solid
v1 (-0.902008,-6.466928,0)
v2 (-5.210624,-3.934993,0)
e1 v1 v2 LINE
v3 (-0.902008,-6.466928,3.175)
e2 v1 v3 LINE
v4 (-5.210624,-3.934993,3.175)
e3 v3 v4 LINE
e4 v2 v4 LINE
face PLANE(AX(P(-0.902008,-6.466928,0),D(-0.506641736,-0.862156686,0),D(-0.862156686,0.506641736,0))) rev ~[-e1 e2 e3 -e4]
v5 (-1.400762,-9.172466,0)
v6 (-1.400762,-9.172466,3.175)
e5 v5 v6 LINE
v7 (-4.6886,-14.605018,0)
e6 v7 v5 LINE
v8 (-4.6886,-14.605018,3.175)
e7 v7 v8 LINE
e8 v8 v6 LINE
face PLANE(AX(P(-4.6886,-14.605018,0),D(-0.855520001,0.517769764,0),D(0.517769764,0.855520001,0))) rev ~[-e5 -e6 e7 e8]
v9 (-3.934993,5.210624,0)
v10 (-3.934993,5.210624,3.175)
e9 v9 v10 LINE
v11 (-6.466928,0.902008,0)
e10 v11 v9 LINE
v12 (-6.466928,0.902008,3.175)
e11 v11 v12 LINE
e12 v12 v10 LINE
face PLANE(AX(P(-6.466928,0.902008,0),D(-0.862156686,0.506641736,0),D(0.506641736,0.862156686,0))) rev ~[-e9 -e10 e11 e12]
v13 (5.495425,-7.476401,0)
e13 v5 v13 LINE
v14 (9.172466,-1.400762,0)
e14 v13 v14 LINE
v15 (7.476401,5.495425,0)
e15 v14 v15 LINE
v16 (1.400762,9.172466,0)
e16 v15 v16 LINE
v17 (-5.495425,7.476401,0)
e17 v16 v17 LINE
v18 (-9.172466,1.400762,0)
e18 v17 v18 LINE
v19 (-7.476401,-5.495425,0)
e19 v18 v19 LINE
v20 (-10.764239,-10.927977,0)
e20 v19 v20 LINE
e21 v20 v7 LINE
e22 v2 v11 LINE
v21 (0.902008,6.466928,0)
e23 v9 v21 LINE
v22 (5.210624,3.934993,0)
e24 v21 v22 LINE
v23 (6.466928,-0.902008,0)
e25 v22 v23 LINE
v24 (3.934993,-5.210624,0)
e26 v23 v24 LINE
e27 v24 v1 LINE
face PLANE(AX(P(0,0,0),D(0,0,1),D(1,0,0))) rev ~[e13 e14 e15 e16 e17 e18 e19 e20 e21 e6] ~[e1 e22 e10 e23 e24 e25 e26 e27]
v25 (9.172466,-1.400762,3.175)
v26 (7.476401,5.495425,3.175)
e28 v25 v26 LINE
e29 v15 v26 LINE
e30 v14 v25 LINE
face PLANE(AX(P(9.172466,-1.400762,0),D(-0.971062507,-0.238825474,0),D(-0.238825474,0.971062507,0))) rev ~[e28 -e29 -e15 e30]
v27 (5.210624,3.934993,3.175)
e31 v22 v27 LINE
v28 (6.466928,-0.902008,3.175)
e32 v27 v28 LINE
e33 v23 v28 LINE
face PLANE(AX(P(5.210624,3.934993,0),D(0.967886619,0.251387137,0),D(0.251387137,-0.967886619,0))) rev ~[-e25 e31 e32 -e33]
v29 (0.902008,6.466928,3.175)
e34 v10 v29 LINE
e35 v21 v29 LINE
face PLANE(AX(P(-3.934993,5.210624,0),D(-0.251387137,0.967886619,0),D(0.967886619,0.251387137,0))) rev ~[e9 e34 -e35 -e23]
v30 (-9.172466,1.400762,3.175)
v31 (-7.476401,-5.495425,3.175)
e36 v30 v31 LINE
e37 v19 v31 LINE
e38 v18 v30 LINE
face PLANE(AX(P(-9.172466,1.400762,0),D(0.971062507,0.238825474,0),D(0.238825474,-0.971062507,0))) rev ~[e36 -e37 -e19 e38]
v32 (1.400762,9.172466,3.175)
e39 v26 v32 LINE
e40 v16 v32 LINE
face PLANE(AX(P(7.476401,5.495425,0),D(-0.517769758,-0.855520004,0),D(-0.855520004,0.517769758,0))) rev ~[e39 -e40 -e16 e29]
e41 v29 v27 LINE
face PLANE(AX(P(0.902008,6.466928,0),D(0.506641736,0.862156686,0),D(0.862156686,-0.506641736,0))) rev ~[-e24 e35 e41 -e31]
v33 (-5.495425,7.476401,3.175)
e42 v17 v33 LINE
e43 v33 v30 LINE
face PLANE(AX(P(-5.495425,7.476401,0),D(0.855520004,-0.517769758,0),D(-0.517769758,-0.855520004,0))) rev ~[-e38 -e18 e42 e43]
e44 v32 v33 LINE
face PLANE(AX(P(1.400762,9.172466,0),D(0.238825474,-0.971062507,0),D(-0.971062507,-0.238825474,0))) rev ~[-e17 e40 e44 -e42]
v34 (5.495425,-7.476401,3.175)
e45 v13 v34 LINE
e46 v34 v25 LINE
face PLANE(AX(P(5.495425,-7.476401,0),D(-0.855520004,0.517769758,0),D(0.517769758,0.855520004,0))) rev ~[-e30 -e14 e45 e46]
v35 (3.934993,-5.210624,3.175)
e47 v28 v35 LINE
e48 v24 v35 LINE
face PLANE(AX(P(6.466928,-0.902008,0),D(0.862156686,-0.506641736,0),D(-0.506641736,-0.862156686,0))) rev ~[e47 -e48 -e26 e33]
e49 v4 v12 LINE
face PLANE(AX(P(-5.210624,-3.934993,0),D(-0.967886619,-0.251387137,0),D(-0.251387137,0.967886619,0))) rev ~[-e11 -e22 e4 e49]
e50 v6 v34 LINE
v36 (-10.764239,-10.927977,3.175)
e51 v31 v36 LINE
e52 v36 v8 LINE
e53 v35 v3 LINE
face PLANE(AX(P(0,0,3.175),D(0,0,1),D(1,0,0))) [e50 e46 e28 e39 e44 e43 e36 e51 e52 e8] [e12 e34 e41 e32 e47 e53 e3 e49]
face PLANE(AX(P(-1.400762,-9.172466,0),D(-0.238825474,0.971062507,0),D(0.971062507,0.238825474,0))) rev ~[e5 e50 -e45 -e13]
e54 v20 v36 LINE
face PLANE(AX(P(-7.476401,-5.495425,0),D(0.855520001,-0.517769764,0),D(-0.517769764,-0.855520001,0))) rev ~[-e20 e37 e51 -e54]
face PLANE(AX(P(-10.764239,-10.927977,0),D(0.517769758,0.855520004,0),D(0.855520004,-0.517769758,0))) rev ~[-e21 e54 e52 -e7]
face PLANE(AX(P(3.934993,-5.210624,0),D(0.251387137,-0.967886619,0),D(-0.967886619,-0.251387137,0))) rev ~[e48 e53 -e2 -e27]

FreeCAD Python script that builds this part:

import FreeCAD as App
import Part
import Sketcher
from FreeCAD import Vector
Q = App.Units.Quantity


def add_polygon(sketch, points):
    """Adds a closed chain of lines whose ends are joined by coincident constraints."""
    first, n = sketch.GeometryCount, len(points)
    for a, b in zip(points, points[1:] + points[:1]):
        sketch.addGeometry(Part.LineSegment(App.Vector(*a, 0), App.Vector(*b, 0)), False)
    for i in range(n):
        sketch.addConstraint(Sketcher.Constraint("Coincident", first + i, 2, first + (i + 1) % n, 1))

doc = App.newDocument("Part")
body = doc.addObject("PartDesign::Body", "Body")

# Sketch on XY plane
sketch1 = body.newObject("Sketcher::SketchObject", "Sketch")
sketch1.AttachmentSupport = (doc.getObject("XY_Plane"), [""])
sketch1.MapMode = "FlatFace"
add_polygon(sketch1, [(1.4, 9.2), (-5.5, 7.5), (-9.2, 1.4), (-7.5, -5.5), (-10.8, -10.9), (-4.7, -14.6), (-1.4, -9.2), (5.5, -7.5), (9.2, -1.4), (7.5, 5.5)])  # lines 0-9
add_polygon(sketch1, [(-0.9, -6.5), (-5.2, -3.9), (-6.5, 0.9), (-3.9, 5.2), (0.9, 6.5), (5.2, 3.9), (6.5, -0.9), (3.9, -5.2)])  # lines 10-17
sketch1.addConstraint([
    Sketcher.Constraint("Symmetric", 0, 2, 6, 2, -1, 1),
    Sketcher.Constraint("Symmetric", 1, 2, 7, 2, -1, 1),
    Sketcher.Constraint("Symmetric", 2, 2, 8, 2, -1, 1),
    Sketcher.Constraint("Symmetric", 5, 2, 9, 2, -1, 1),
    Sketcher.Constraint("Symmetric", 10, 2, 14, 2, -1, 1),
    Sketcher.Constraint("Symmetric", 11, 2, 15, 2, -1, 1),
    Sketcher.Constraint("Symmetric", 12, 2, 16, 2, -1, 1),
    Sketcher.Constraint("Symmetric", 13, 2, 17, 2, -1, 1),
    Sketcher.Constraint("Perpendicular", 0, 2),
    Sketcher.Constraint("Parallel", 1, 3),
    Sketcher.Constraint("Perpendicular", 3, 4),
    Sketcher.Constraint("Perpendicular", 4, 5),
    Sketcher.Constraint("Perpendicular", 7, 9),
    Sketcher.Constraint("Perpendicular", 10, 12),
    Sketcher.Constraint("Perpendicular", 11, 13),
    Sketcher.Constraint("Equal", 0, 1),
    Sketcher.Constraint("Equal", 1, 2),
    Sketcher.Constraint("Equal", 2, 4),
    Sketcher.Constraint("Equal", 10, 11),
    Sketcher.Constraint("Equal", 11, 12),
    Sketcher.Constraint("Equal", 12, 13),
    Sketcher.Constraint("Distance", 3, Q("0.25 in")),
    Sketcher.Constraint("DistanceY", -1, 1, 0, 2, Q("7.476401 mm")),
    Sketcher.Constraint("DistanceX", 4, 2, -1, 1, Q("4.6886 mm")),
    Sketcher.Constraint("DistanceY", 10, 2, 11, 2, Q("4.837001 mm")),
    Sketcher.Constraint("Distance", 1, Q("7.101691 mm")),
    Sketcher.Constraint("DistanceX", 11, 2, -1, 1, Q("6.466928 mm")),
    Sketcher.Constraint("DistanceY", -1, 1, 11, 2, Q("0.902008 mm")),
])
pad1 = body.newObject("PartDesign::Pad", "Pad")
pad1.Profile = sketch1
pad1.Length = Q("0.125 in")

doc.recompute()
